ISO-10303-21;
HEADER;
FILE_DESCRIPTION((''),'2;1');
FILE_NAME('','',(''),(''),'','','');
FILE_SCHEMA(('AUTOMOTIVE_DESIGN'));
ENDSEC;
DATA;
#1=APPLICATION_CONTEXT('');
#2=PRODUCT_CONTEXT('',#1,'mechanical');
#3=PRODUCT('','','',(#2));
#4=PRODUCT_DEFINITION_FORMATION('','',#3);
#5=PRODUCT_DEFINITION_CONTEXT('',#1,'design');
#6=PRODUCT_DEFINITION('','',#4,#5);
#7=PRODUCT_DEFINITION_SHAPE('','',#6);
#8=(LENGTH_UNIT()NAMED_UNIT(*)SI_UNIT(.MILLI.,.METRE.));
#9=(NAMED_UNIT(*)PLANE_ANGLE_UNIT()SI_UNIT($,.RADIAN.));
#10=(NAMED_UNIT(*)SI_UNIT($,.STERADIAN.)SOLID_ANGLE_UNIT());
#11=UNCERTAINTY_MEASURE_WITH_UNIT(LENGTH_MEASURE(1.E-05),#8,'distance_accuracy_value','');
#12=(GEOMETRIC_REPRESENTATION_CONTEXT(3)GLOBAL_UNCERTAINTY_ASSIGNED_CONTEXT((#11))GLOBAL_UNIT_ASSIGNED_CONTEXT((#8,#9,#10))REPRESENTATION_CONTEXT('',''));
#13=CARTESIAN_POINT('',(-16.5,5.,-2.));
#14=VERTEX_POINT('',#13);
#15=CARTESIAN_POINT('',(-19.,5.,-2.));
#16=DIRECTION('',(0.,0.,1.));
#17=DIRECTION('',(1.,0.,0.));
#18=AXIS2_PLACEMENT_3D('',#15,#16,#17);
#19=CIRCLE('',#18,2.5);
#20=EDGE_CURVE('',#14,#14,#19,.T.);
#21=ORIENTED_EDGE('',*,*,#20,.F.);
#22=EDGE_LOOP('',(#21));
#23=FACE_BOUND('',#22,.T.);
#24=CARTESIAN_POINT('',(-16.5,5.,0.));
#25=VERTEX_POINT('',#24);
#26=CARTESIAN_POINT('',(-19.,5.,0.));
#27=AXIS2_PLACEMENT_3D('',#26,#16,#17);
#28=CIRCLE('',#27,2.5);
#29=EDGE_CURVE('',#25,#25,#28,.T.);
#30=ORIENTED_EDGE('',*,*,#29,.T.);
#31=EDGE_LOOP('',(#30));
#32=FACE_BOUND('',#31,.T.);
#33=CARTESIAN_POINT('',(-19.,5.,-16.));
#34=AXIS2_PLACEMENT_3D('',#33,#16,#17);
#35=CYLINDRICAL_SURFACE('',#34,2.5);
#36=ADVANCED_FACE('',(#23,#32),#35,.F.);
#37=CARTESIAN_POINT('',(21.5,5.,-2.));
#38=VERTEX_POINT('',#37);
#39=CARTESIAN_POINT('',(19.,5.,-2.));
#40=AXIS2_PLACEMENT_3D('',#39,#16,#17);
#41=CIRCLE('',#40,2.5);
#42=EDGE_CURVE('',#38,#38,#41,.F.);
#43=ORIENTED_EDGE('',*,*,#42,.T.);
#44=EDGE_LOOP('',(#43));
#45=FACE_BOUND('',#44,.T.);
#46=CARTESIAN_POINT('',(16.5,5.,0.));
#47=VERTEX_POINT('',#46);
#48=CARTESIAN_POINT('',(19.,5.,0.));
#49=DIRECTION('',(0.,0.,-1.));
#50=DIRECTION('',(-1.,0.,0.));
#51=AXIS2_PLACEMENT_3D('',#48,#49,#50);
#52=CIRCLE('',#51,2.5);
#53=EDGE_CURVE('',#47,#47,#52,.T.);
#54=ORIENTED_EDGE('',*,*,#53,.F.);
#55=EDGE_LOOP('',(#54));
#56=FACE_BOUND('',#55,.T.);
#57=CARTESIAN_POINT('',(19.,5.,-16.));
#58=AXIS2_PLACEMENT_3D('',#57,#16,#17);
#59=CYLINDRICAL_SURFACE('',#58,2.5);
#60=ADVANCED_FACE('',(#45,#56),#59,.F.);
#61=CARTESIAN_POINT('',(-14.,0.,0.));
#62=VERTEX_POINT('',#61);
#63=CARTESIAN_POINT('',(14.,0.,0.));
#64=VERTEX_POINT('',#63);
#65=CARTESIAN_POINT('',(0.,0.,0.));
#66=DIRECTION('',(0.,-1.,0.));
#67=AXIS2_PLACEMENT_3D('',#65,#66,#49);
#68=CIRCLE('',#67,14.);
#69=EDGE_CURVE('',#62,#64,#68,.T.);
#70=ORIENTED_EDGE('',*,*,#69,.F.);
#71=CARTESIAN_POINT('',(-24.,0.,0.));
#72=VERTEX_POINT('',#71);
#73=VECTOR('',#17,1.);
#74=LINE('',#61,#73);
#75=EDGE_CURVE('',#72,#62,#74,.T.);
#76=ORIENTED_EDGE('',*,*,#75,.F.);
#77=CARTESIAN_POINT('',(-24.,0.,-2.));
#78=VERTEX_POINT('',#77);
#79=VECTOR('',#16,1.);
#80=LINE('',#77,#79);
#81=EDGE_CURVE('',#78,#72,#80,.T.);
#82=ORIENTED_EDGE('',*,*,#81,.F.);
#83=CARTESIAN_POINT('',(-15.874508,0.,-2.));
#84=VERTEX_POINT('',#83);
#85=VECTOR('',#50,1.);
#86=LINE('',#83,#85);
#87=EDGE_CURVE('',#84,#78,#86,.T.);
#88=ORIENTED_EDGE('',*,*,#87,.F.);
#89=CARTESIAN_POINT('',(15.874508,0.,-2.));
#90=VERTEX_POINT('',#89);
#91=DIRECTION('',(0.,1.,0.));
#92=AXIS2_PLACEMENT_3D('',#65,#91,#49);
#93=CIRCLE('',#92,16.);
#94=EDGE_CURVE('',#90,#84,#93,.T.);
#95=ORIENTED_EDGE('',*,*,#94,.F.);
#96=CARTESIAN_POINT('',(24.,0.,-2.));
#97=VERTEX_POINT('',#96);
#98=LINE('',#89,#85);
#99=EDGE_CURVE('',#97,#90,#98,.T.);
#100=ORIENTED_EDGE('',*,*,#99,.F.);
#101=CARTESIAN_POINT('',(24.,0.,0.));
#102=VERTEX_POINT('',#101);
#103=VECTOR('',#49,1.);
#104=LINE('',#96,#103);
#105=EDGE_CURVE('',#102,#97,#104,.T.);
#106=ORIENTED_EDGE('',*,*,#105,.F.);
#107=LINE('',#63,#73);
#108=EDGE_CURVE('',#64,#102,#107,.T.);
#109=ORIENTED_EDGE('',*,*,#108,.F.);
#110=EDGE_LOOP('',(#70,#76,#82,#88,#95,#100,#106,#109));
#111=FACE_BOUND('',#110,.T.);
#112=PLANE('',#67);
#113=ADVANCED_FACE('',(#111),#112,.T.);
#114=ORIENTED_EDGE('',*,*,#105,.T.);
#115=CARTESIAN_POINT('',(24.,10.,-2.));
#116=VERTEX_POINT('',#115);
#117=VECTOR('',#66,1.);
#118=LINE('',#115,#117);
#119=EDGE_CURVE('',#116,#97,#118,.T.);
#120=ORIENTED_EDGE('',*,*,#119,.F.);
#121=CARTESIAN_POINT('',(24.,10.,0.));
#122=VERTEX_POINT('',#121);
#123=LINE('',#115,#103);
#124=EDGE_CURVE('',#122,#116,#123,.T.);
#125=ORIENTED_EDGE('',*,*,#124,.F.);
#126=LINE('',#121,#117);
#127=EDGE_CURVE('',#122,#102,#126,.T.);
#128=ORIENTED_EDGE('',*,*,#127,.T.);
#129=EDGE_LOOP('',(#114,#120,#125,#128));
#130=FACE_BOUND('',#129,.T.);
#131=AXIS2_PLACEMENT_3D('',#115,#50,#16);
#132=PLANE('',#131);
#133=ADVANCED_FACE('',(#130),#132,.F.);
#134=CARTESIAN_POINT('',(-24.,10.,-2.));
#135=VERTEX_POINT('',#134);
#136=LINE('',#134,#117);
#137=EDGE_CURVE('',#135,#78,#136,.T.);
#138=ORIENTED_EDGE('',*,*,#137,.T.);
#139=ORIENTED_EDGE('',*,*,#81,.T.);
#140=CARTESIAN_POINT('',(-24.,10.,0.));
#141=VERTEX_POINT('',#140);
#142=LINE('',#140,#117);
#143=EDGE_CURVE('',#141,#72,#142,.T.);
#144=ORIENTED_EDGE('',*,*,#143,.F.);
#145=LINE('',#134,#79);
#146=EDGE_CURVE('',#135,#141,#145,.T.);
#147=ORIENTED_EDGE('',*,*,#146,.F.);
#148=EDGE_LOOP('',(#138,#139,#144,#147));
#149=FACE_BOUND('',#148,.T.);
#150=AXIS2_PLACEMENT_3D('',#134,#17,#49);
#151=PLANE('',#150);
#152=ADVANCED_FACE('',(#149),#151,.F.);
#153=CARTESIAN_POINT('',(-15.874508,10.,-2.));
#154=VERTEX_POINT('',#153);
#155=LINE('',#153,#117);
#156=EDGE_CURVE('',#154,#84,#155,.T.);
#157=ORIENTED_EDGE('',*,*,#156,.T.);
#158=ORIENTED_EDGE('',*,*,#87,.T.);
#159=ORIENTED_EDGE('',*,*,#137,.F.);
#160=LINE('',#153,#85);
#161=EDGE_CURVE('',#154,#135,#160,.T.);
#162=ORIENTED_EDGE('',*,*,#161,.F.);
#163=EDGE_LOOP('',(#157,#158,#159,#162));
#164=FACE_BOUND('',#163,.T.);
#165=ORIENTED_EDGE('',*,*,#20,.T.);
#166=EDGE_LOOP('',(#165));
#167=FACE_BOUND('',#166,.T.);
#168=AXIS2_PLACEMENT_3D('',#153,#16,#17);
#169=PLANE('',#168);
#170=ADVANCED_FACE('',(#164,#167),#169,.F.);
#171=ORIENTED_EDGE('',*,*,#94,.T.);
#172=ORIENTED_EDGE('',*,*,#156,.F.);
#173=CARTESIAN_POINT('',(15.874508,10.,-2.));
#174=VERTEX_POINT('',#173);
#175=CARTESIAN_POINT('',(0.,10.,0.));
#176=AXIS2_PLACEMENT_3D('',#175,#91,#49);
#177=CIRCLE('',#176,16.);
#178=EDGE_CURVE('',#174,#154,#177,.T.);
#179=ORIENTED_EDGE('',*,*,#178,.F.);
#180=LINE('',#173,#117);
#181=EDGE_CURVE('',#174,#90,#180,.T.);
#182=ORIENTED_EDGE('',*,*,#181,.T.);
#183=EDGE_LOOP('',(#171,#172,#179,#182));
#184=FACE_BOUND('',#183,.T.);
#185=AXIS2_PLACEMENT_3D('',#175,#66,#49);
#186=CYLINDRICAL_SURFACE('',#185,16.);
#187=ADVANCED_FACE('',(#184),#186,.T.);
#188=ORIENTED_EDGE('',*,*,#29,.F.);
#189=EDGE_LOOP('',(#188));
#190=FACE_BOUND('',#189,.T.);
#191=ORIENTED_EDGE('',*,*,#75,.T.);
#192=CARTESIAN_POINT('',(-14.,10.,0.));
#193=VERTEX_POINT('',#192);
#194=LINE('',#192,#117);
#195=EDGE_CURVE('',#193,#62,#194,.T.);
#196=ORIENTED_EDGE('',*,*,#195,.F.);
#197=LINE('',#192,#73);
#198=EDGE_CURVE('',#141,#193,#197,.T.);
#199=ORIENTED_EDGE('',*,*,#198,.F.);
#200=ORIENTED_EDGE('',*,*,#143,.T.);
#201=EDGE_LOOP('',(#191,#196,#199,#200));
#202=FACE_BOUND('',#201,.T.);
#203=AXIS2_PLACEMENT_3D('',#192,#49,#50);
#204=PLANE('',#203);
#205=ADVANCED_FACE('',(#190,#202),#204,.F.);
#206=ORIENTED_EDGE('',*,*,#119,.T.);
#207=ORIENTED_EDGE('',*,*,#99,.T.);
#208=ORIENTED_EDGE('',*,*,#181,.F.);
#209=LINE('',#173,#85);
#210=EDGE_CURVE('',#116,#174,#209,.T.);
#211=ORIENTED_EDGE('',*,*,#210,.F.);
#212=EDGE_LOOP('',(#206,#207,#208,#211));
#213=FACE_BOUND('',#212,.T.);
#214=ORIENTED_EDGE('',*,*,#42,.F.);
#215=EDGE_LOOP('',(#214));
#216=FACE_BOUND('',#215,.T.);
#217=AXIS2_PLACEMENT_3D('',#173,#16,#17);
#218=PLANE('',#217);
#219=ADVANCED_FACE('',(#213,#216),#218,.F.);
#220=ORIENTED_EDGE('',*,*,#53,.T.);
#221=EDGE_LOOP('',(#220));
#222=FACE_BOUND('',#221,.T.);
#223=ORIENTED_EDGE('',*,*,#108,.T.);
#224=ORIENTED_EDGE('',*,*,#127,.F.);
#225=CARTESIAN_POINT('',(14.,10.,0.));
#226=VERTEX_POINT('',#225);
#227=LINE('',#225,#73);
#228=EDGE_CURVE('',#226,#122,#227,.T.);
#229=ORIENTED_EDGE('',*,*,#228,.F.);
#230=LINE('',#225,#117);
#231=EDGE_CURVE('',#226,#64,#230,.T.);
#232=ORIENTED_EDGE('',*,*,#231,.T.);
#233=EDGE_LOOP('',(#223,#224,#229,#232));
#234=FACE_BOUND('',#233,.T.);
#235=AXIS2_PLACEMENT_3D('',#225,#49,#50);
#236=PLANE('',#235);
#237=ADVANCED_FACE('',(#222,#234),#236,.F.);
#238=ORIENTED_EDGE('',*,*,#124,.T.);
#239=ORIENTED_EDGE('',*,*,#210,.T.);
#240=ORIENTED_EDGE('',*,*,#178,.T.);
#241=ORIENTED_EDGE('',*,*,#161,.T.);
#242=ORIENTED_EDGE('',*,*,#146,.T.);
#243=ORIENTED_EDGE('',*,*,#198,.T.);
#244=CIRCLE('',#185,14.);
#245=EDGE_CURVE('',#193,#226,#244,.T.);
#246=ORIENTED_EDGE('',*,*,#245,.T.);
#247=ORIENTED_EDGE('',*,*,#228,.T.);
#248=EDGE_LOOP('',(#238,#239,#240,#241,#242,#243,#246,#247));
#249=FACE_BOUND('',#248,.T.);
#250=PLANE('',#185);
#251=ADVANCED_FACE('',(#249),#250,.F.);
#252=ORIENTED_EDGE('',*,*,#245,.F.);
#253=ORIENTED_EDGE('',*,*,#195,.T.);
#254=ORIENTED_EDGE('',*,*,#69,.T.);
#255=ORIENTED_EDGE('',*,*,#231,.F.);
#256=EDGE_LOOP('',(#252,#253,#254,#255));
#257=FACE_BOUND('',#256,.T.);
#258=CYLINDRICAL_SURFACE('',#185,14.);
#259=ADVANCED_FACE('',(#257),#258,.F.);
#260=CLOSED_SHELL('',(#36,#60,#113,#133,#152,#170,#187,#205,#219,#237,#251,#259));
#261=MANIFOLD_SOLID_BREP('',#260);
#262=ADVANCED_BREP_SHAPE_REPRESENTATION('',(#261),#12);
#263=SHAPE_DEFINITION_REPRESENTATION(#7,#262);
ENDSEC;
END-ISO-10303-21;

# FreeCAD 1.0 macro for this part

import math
import FreeCAD as App
import Part
import Sketcher
from FreeCAD import Vector

doc = App.newDocument("Part")
body = doc.addObject("PartDesign::Body", "Body")

# Sketch on XZ plane
sketch1 = body.newObject("Sketcher::SketchObject", "Sketch")
sketch1.AttachmentSupport = (doc.getObject("XZ_Plane"), [""])
sketch1.MapMode = "FlatFace"
sketch1.addGeometry(Part.LineSegment(Vector(-24, 0, 0), Vector(-14, 0, 0)), False)
sketch1.addGeometry(Part.ArcOfCircle(Part.Circle(Vector(0, 0, 0), Vector(0, 0, 1), 14), math.radians(180), math.radians(360)), False)
sketch1.addGeometry(Part.LineSegment(Vector(14, 0, 0), Vector(24, 0, 0)), False)
sketch1.addGeometry(Part.LineSegment(Vector(24, 0, 0), Vector(24, -2, 0)), False)
sketch1.addGeometry(Part.LineSegment(Vector(24, -2, 0), Vector(15.874508, -2, 0)), False)
sketch1.addGeometry(Part.ArcOfCircle(Part.Circle(Vector(0, 0, 0), Vector(0, 0, 1), 16), math.radians(-172.819244), math.radians(-7.180756)), False)
sketch1.addGeometry(Part.LineSegment(Vector(-15.874508, -2, 0), Vector(-24, -2, 0)), False)
sketch1.addGeometry(Part.LineSegment(Vector(-24, -2, 0), Vector(-24, 0, 0)), False)
sketch1.addConstraint(Sketcher.Constraint("Coincident", 0, 2, 1, 1))
sketch1.addConstraint(Sketcher.Constraint("Coincident", 1, 2, 2, 1))
sketch1.addConstraint(Sketcher.Constraint("Coincident", 2, 2, 3, 1))
sketch1.addConstraint(Sketcher.Constraint("Coincident", 3, 2, 4, 1))
sketch1.addConstraint(Sketcher.Constraint("Coincident", 4, 2, 5, 2))
sketch1.addConstraint(Sketcher.Constraint("Coincident", 5, 1, 6, 1))
sketch1.addConstraint(Sketcher.Constraint("Coincident", 6, 2, 7, 1))
sketch1.addConstraint(Sketcher.Constraint("Coincident", 7, 2, 0, 1))
sketch1.addConstraint(Sketcher.Constraint("Horizontal", 0))
sketch1.addConstraint(Sketcher.Constraint("Horizontal", 2))
sketch1.addConstraint(Sketcher.Constraint("Vertical", 3))
sketch1.addConstraint(Sketcher.Constraint("Horizontal", 4))
sketch1.addConstraint(Sketcher.Constraint("Horizontal", 6))
sketch1.addConstraint(Sketcher.Constraint("Vertical", 7))
sketch1.addConstraint(Sketcher.Constraint("Coincident", 1, 3, -1, 1))
sketch1.addConstraint(Sketcher.Constraint("Coincident", 5, 3, -1, 1))
sketch1.addConstraint(Sketcher.Constraint("Symmetric", 2, 2, 7, 2, -1, 1))
sketch1.addConstraint(Sketcher.Constraint("PointOnObject", 0, 2, -1))
sketch1.addConstraint(Sketcher.Constraint("Horizontal", 4, 2, 5, 1))
sketch1.addConstraint(Sketcher.Constraint("Radius", 1, 14.0))
sketch1.addConstraint(Sketcher.Constraint("Radius", 5, 16.0))
sketch1.addConstraint(Sketcher.Constraint("DistanceX", 0, 1, 0, 2, 10.0))
sketch1.addConstraint(Sketcher.Constraint("DistanceY", 3, 2, 3, 1, 2.0))
pad1 = body.newObject("PartDesign::Pad", "Pad")
pad1.Profile = sketch1
pad1.Length = 10
pad1.Reversed = True

# Sketch on XY plane
sketch2 = body.newObject("Sketcher::SketchObject", "Sketch001")
sketch2.AttachmentSupport = (doc.getObject("XY_Plane"), [""])
sketch2.MapMode = "FlatFace"
sketch2.addGeometry(Part.Circle(Vector(-19, 5, 0), Vector(0, 0, 1), 2.5), False)
sketch2.addConstraint(Sketcher.Constraint("Diameter", 0, 5.0))
sketch2.addConstraint(Sketcher.Constraint("DistanceX", 0, 3, -1, 1, 19.0))
sketch2.addConstraint(Sketcher.Constraint("DistanceY", -1, 1, 0, 3, 5.0))
pocket1 = body.newObject("PartDesign::Pocket", "Pocket")
pocket1.Profile = sketch2
pocket1.Type = "ThroughAll"
doc.recompute()

mirrored = body.newObject("PartDesign::Mirrored", "Mirrored")
mirrored.Originals = [pocket1]
mirrored.MirrorPlane = (doc.getObject("YZ_Plane"), [""])
body.Tip = mirrored

doc.recompute()
